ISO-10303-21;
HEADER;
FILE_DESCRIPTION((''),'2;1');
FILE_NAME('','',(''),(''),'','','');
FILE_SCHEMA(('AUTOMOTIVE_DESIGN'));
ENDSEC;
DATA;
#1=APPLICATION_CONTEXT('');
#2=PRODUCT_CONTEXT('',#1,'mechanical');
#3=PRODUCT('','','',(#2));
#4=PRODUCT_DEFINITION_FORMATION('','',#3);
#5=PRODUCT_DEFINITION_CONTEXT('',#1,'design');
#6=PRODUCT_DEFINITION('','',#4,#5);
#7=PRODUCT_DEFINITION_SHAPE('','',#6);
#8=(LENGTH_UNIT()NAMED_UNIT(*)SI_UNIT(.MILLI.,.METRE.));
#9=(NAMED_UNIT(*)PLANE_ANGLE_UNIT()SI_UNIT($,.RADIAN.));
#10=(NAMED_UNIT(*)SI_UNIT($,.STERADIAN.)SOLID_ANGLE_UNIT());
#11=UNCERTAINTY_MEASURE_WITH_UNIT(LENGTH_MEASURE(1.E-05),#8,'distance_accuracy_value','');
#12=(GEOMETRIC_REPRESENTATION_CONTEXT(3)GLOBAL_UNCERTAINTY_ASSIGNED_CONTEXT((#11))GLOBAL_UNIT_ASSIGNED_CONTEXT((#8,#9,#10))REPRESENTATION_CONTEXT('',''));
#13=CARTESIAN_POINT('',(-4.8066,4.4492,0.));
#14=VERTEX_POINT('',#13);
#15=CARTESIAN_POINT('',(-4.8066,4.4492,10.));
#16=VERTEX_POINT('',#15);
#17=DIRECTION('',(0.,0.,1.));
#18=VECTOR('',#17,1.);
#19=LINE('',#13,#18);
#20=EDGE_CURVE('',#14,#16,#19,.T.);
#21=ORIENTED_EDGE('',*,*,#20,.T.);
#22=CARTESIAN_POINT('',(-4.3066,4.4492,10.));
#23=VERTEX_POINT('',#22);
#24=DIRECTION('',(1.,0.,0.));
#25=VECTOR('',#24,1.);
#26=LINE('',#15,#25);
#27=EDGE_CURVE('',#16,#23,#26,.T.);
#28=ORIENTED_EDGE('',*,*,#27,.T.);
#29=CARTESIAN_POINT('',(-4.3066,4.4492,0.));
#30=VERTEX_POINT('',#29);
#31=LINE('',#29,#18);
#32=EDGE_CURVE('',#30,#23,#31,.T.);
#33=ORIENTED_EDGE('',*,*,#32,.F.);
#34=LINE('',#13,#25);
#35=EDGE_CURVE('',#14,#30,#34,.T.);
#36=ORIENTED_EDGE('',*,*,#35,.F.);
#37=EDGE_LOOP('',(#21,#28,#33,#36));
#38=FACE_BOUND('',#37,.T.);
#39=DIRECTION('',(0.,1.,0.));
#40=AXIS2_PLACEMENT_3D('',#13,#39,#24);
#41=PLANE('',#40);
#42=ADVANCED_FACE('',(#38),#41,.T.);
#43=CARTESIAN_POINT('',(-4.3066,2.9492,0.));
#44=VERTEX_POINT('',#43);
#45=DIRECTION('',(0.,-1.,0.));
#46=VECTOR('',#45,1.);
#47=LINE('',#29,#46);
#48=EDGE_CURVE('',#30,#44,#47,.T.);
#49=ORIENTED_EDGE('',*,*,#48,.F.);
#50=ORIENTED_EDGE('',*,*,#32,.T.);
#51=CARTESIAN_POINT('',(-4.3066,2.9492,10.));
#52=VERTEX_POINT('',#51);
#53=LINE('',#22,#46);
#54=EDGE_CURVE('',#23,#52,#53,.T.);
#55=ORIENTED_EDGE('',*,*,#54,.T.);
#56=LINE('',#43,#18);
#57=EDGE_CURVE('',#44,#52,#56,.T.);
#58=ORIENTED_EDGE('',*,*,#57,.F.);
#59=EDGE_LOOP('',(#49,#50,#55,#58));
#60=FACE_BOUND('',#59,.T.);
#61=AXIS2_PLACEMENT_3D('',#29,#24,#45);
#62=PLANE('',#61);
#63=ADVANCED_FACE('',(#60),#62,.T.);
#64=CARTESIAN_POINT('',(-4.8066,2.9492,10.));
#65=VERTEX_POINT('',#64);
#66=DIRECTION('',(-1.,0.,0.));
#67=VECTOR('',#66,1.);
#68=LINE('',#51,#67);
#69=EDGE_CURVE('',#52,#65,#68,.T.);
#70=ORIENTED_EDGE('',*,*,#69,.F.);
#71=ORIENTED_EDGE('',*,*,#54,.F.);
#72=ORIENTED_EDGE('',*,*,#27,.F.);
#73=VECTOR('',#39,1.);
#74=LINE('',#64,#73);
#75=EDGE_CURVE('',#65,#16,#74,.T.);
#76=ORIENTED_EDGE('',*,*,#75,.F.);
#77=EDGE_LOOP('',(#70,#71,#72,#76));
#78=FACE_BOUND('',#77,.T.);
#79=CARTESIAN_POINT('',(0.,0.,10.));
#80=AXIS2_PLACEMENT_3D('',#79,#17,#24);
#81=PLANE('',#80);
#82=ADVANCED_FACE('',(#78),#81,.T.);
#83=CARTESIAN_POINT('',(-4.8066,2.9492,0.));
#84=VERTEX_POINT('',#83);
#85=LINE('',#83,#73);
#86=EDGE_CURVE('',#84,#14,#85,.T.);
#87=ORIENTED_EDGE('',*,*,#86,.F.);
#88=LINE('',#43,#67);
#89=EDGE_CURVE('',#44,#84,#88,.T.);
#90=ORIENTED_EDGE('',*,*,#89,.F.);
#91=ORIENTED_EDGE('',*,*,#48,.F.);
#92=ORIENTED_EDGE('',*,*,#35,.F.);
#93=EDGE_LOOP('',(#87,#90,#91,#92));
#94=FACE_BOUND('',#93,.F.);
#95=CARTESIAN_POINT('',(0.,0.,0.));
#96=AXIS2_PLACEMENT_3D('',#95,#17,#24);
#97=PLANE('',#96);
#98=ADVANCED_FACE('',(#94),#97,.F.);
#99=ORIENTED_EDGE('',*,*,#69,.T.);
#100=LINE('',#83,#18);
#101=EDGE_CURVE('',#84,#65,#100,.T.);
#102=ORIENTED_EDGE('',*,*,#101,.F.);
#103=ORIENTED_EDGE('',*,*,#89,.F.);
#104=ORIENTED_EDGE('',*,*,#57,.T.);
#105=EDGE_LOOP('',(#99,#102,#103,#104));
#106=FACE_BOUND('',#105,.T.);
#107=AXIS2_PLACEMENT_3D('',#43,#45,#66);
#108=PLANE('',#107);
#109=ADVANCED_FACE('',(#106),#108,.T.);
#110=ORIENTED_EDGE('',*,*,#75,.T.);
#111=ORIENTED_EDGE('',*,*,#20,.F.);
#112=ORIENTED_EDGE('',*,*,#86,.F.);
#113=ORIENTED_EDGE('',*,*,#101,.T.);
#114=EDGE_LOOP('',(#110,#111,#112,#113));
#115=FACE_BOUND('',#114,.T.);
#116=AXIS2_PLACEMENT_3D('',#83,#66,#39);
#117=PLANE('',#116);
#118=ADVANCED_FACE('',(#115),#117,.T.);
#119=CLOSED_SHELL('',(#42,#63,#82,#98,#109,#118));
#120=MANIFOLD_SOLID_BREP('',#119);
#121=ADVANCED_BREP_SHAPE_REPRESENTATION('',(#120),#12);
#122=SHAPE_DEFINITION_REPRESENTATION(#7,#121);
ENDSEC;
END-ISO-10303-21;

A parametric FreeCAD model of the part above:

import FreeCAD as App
import Part
import Sketcher

V = App.Vector

doc = App.newDocument("Part")
body = doc.addObject("PartDesign::Body", "Body")

# Sketch on XY plane
sketch1 = body.newObject("Sketcher::SketchObject", "Sketch")
sketch1.AttachmentSupport = (doc.getObject("XY_Plane"), [""])
sketch1.MapMode = "FlatFace"
sketch1.addGeometry([
    Part.LineSegment(V(-4.3, 4.4, 0), V(-4.8, 4.4, 0)),
    Part.LineSegment(V(-4.8, 4.4, 0), V(-4.8, 2.9, 0)),
    Part.LineSegment(V(-4.8, 2.9, 0), V(-4.3, 2.9, 0)),
    Part.LineSegment(V(-4.3, 2.9, 0), V(-4.3, 4.4, 0)),
], False)
sketch1.addConstraint([
    Sketcher.Constraint("Coincident", 0, 2, 1, 1),
    Sketcher.Constraint("Coincident", 1, 2, 2, 1),
    Sketcher.Constraint("Coincident", 2, 2, 3, 1),
    Sketcher.Constraint("Coincident", 3, 2, 0, 1),
    Sketcher.Constraint("Horizontal", 0),
    Sketcher.Constraint("Vertical", 1),
    Sketcher.Constraint("Horizontal", 2),
    Sketcher.Constraint("Vertical", 3),
    Sketcher.Constraint("DistanceX", 0, 2, 0, 1, 0.5),
    Sketcher.Constraint("DistanceY", 1, 2, 1, 1, 1.5),
    Sketcher.Constraint("DistanceX", 0, 2, -1, 1, 4.8066),
    Sketcher.Constraint("DistanceY", -1, 1, 0, 2, 4.4492),
])
pad1 = body.newObject("PartDesign::Pad", "Pad")
pad1.Profile = sketch1
pad1.Length = 10

doc.recompute()
